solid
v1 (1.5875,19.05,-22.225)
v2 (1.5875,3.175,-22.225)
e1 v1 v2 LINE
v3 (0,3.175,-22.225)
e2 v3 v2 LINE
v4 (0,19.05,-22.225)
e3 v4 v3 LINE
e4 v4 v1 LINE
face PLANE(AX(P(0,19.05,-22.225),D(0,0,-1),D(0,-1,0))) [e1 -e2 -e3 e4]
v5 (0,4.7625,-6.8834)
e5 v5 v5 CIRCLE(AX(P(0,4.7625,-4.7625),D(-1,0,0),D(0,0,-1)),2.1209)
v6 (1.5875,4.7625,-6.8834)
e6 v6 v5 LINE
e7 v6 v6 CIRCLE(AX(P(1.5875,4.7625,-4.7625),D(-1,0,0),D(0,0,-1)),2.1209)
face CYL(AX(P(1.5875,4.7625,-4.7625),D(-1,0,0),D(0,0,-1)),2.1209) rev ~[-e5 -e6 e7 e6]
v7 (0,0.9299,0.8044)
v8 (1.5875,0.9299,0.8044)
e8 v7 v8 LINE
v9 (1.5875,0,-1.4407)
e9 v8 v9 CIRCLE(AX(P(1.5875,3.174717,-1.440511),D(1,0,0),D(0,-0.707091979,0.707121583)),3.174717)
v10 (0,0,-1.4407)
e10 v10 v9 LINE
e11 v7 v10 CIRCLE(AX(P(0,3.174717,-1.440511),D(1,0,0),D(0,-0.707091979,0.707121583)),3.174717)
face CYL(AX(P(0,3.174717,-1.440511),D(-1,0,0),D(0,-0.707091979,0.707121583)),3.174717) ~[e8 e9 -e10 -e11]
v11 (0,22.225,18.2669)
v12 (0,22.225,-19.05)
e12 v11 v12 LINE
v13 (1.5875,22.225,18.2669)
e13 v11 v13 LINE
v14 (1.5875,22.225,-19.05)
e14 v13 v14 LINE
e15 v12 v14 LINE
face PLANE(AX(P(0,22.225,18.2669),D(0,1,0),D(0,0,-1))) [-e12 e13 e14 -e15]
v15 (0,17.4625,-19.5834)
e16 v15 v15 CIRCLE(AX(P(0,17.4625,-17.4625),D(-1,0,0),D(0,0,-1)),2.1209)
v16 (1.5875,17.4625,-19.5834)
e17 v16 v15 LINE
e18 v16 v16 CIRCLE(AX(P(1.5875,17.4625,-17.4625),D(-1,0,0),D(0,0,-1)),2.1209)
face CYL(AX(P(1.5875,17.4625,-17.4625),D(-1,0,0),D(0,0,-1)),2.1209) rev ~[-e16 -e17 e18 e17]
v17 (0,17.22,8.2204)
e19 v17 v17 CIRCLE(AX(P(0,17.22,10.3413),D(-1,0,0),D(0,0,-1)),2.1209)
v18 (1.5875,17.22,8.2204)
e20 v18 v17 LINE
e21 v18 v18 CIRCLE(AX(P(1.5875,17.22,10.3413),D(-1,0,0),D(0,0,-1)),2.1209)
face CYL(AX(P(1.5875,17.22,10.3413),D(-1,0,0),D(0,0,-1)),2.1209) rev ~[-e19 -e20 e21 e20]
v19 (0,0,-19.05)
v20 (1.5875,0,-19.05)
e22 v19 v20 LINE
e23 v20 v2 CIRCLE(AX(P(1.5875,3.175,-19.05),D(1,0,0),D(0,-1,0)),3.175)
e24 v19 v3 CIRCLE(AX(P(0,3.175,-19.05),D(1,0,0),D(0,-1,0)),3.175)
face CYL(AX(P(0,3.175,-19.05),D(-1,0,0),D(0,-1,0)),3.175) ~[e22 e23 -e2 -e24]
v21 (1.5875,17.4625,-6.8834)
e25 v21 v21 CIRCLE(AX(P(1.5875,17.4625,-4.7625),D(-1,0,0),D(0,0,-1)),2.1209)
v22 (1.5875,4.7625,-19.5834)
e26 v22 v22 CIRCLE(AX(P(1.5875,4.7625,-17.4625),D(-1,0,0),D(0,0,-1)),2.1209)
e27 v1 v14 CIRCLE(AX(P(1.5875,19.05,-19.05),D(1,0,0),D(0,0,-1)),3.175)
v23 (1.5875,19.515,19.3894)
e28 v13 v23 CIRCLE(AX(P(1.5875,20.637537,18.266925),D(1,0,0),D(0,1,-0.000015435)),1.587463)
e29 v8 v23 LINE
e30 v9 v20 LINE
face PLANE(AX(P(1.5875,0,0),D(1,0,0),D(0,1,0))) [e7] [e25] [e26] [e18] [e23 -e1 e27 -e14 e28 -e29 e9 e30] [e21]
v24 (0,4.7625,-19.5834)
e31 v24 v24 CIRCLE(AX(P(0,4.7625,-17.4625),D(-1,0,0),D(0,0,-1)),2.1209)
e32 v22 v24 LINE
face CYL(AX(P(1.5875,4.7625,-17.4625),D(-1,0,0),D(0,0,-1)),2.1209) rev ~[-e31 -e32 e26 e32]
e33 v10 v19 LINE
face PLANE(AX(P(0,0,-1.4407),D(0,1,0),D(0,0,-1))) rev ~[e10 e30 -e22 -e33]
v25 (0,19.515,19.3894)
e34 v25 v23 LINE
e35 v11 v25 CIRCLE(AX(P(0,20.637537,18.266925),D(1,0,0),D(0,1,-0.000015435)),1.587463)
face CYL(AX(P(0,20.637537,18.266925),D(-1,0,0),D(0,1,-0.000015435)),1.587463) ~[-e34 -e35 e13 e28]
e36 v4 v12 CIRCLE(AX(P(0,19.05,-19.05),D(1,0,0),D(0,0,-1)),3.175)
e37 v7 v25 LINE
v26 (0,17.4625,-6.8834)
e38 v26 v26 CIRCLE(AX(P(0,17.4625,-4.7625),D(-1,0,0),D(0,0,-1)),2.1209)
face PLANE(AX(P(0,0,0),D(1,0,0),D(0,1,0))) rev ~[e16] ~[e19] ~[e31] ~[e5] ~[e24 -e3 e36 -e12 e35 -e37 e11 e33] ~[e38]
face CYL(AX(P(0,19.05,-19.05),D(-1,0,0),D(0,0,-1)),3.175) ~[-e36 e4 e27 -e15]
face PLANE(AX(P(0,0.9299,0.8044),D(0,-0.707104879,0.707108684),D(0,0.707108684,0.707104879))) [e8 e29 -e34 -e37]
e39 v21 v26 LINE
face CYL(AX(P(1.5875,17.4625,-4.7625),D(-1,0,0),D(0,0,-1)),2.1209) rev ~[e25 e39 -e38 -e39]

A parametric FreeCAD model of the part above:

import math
import FreeCAD as App
import Part
import Sketcher
Q = App.Units.Quantity

doc = App.newDocument("Part")
params = doc.addObject("Spreadsheet::Sheet", "Params")
for row, (alias, value) in enumerate([
    ("sketch1_radius", "0.125 in"),
    ("sketch1_radius2", "0.0625 in"),
    ("pad1_length", "0.0625 in"),
    ("sketch2_diameter", "0.167 in"),
    ("hole_diameter", "0.167 in"),
], start=1):
    params.set(f"A{row}", alias)
    params.set(f"B{row}", "=" + value)
    params.setAlias(f"B{row}", alias)

body = doc.addObject("PartDesign::Body", "Body")

# Sketch on YZ plane
sketch1 = body.newObject("Sketcher::SketchObject", "Sketch")
sketch1.AttachmentSupport = (doc.getObject("YZ_Plane"), [""])
sketch1.MapMode = "FlatFace"
sketch1.addGeometry([
    Part.LineSegment(App.Vector(0, -1.4407, 0), App.Vector(0, -19.05, 0)),  # 0
    Part.ArcOfCircle(Part.Circle(App.Vector(3.175, -19.05, 0), App.Vector(0, 0, 1), 3.175), math.radians(180), math.radians(270)),  # 1
    Part.LineSegment(App.Vector(3.175, -22.225, 0), App.Vector(19.05, -22.225, 0)),  # 2
    Part.ArcOfCircle(Part.Circle(App.Vector(19.05, -19.05, 0), App.Vector(0, 0, 1), 3.175), math.radians(-90), math.radians(0)),  # 3
    Part.LineSegment(App.Vector(22.225, -19.05, 0), App.Vector(22.225, 18.2669, 0)),  # 4
    Part.ArcOfCircle(Part.Circle(App.Vector(20.6375, 18.2669, 0), App.Vector(0, 0, 1), 1.5875), math.radians(0), math.radians(135)),  # 5
    Part.LineSegment(App.Vector(19.515, 19.3894, 0), App.Vector(0.9299, 0.8044, 0)),  # 6
    Part.ArcOfCircle(Part.Circle(App.Vector(3.175, -1.4407, 0), App.Vector(0, 0, 1), 3.175051), math.radians(135), math.radians(180)),  # 7
], False)
sketch1.addConstraint([
    Sketcher.Constraint("Tangent", 0, 2, 1, 1),
    Sketcher.Constraint("Tangent", 1, 2, 2, 1),
    Sketcher.Constraint("Tangent", 2, 2, 3, 1),
    Sketcher.Constraint("Tangent", 3, 2, 4, 1),
    Sketcher.Constraint("Tangent", 4, 2, 5, 1),
    Sketcher.Constraint("Tangent", 5, 2, 6, 1),
    Sketcher.Constraint("Tangent", 6, 2, 7, 1),
    Sketcher.Constraint("Tangent", 7, 2, 0, 1),
    Sketcher.Constraint("Vertical", 0),
    Sketcher.Constraint("Horizontal", 2),
    Sketcher.Constraint("Vertical", 4),
    Sketcher.Constraint("Equal", 1, 3),
    Sketcher.Constraint("Equal", 3, 7),
    Sketcher.Constraint("PointOnObject", 0, 2, -2),
    Sketcher.Constraint("Radius", 1, Q("0.125 in")),
    Sketcher.Constraint("Radius", 5, Q("0.0625 in")),
    Sketcher.Constraint("DistanceY", 1, 2, -1, 1, Q("0.875 in")),
    Sketcher.Constraint("DistanceX", -1, 1, 3, 2, Q("0.875 in")),
    Sketcher.Constraint("Angle", 6, Q("-135.0002 deg")),
    Sketcher.Constraint("DistanceY", 0, 2, 0, 1, Q("17.6093 mm")),
])
sketch1.setExpression("Constraints[14]", "Params.sketch1_radius")
sketch1.setExpression("Constraints[15]", "Params.sketch1_radius2")
pad1 = body.newObject("PartDesign::Pad", "Pad")
pad1.Profile = sketch1
pad1.setExpression("Length", "Params.pad1_length")

# Sketch on YZ plane
sketch2 = body.newObject("Sketcher::SketchObject", "Sketch001")
sketch2.AttachmentSupport = (doc.getObject("YZ_Plane"), [""])
sketch2.MapMode = "FlatFace"
sketch2.AttachmentOffset = App.Placement(App.Vector(0, 0, 0.0625 * 25.4), App.Rotation())
sketch2.addGeometry([
    Part.Circle(App.Vector(17.4625, -4.7625, 0), App.Vector(0, 0, 1), 2.1209),  # 0
    Part.Circle(App.Vector(4.7625, -4.7625, 0), App.Vector(0, 0, 1), 2.1209),  # 1
    Part.Circle(App.Vector(17.22, 10.3413, 0), App.Vector(0, 0, 1), 2.1209),  # 2
    Part.Circle(App.Vector(17.4625, -17.4625, 0), App.Vector(0, 0, 1), 2.1209),  # 3
    Part.Circle(App.Vector(4.7625, -17.4625, 0), App.Vector(0, 0, 1), 2.1209),  # 4
], False)
sketch2.addConstraint([
    Sketcher.Constraint("Equal", 0, 1),
    Sketcher.Constraint("Equal", 1, 2),
    Sketcher.Constraint("Equal", 2, 3),
    Sketcher.Constraint("Equal", 3, 4),
    Sketcher.Constraint("Horizontal", 0, 3, 1, 3),
    Sketcher.Constraint("Horizontal", 3, 3, 4, 3),
    Sketcher.Constraint("Vertical", 0, 3, 3, 3),
    Sketcher.Constraint("Vertical", 1, 3, 4, 3),
    Sketcher.Constraint("Diameter", 0, Q("0.167 in")),
    Sketcher.Constraint("DistanceX", 1, 3, 0, 3, Q("0.5 in")),
    Sketcher.Constraint("DistanceY", 3, 3, 0, 3, Q("0.5 in")),
    Sketcher.Constraint("DistanceX", -1, 1, 0, 3, Q("0.6875 in")),
    Sketcher.Constraint("DistanceY", 0, 3, -1, 1, Q("0.1875 in")),
    Sketcher.Constraint("DistanceX", -1, 1, 2, 3, Q("17.22 mm")),
    Sketcher.Constraint("DistanceY", -1, 1, 2, 3, Q("10.3413 mm")),
])
sketch2.setExpression("Constraints[8]", "Params.sketch2_diameter")
doc.recompute()
hole = body.newObject("PartDesign::Hole", "Hole")
hole.Profile = sketch2
hole.ThreadType = "None"
hole.setExpression("Diameter", "Params.hole_diameter")
hole.DepthType = "ThroughAll"

doc.recompute()
